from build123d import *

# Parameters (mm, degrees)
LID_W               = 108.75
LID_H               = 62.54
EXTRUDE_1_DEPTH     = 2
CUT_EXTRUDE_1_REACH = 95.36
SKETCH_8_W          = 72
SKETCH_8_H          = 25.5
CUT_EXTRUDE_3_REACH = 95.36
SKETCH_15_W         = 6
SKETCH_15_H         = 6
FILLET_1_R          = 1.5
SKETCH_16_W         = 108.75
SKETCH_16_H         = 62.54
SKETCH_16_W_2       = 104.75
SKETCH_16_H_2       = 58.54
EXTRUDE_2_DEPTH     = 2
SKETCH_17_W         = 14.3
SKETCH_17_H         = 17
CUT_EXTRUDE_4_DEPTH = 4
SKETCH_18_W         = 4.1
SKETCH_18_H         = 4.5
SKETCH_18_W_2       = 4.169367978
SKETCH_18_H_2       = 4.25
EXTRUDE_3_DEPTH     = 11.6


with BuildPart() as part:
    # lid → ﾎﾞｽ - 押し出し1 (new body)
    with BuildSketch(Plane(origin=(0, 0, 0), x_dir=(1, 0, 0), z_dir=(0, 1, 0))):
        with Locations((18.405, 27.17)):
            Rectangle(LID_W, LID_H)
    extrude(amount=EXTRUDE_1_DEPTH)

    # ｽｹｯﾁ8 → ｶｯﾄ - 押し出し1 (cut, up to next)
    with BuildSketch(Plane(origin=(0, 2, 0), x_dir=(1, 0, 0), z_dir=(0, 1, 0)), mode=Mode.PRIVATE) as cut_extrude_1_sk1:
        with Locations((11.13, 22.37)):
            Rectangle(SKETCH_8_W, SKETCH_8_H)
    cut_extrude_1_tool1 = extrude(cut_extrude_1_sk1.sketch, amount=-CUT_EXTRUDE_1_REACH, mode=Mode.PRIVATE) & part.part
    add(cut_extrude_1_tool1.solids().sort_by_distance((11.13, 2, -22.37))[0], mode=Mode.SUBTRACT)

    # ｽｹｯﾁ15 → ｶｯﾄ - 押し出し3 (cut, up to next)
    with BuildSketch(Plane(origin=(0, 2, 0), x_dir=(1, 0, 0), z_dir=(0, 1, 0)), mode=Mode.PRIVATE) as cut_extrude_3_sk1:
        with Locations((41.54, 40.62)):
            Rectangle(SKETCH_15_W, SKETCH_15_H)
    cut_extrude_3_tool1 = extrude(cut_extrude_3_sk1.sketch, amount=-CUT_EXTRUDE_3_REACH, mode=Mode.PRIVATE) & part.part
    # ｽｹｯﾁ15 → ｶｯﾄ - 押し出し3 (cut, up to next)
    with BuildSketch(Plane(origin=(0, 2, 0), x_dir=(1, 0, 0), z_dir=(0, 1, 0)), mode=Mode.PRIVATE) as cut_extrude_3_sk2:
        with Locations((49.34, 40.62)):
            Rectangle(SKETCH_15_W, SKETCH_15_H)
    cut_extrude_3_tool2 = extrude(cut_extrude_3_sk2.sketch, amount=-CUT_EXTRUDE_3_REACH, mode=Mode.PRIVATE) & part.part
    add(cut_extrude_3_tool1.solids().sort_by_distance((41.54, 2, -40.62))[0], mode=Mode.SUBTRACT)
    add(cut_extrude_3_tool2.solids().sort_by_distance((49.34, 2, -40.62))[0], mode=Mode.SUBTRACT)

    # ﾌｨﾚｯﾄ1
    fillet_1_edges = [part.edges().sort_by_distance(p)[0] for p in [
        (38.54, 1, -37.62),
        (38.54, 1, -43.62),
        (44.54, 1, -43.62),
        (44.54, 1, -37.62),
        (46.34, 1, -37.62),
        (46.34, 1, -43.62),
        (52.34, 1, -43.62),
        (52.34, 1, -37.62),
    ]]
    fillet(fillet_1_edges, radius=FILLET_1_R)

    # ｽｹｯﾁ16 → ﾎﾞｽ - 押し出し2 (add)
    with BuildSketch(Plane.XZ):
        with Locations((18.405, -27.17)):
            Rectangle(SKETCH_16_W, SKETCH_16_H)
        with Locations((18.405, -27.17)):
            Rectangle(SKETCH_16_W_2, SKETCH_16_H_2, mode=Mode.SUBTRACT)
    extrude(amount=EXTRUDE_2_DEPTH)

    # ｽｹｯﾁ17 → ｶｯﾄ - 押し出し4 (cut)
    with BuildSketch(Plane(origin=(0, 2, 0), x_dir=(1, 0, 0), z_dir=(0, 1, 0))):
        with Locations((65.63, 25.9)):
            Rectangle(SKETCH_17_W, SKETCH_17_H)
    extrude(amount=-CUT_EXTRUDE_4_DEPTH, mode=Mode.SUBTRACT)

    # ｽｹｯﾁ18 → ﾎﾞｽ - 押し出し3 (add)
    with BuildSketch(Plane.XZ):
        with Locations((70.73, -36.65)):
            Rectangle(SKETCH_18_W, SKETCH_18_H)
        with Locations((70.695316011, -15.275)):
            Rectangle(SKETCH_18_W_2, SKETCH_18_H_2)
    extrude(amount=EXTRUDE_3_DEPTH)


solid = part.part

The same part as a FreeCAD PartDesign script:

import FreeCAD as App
import Part
import Sketcher

V = App.Vector
Q = App.Units.Quantity


def edges_at(feature, points):
    """Names of the edges that pass closest to the given points."""
    edges = feature.Shape.Edges
    near = lambda p: min(range(len(edges)), key=lambda i: edges[i].distToShape(Part.Vertex(*p))[0])
    return sorted({f"Edge{near(p) + 1}" for p in points})

doc = App.newDocument("Part")
params = doc.addObject("Spreadsheet::Sheet", "Params")
for row, (alias, value) in enumerate([
    ("sketch1_width", "108.75 mm"),
    ("sketch1_height", "62.54 mm"),
    ("pad1_length", "2 mm"),
    ("sketch2_width", "72 mm"),
    ("sketch2_height", "25.5 mm"),
    ("sketch3_width", "6 mm"),
    ("sketch4_width", "6 mm"),
    ("fillet_radius", "1.5 mm"),
    ("sketch5_width", "108.75 mm"),
    ("sketch5_height", "62.54 mm"),
    ("pad2_length", "2 mm"),
    ("sketch6_height", "17 mm"),
    ("sketch6_width", "14.3 mm"),
    ("pocket4_length", "4 mm"),
    ("sketch7_width", "4.1 mm"),
    ("sketch7_height", "4.5 mm"),
    ("sketch7_height2", "4.25 mm"),
    ("pad3_length", "11.6 mm"),
], start=1):
    params.set(f"A{row}", alias)
    params.set(f"B{row}", "=" + value)
    params.setAlias(f"B{row}", alias)

body = doc.addObject("PartDesign::Body", "Body")

sketch1 = body.newObject("Sketcher::SketchObject", "Sketch")
sketch1.AttachmentSupport = (doc.getObject("XZ_Plane"), [""])
sketch1.MapMode = "FlatFace"
sketch1.addGeometry(Part.LineSegment(V(-35.97, -58.44, 0), V(-35.97, 4.1, 0)), False)
sketch1.addGeometry(Part.LineSegment(V(-35.97, 4.1, 0), V(72.78, 4.1, 0)), False)
sketch1.addGeometry(Part.LineSegment(V(72.78, 4.1, 0), V(72.78, -58.44, 0)), False)
sketch1.addGeometry(Part.LineSegment(V(72.78, -58.44, 0), V(-35.97, -58.44, 0)), False)
sketch1.addConstraint(Sketcher.Constraint("Coincident", 0, 2, 1, 1))
sketch1.addConstraint(Sketcher.Constraint("Coincident", 1, 2, 2, 1))
sketch1.addConstraint(Sketcher.Constraint("Coincident", 2, 2, 3, 1))
sketch1.addConstraint(Sketcher.Constraint("Coincident", 3, 2, 0, 1))
sketch1.addConstraint(Sketcher.Constraint("Vertical", 0))
sketch1.addConstraint(Sketcher.Constraint("Horizontal", 1))
sketch1.addConstraint(Sketcher.Constraint("Vertical", 2))
sketch1.addConstraint(Sketcher.Constraint("Horizontal", 3))
sketch1.addConstraint(Sketcher.Constraint("DistanceX", 1, 1, 1, 2, Q("108.75 mm")))
sketch1.addConstraint(Sketcher.Constraint("DistanceY", 0, 1, 0, 2, Q("62.54 mm")))
sketch1.addConstraint(Sketcher.Constraint("DistanceY", -1, 1, 0, 2, Q("4.1 mm")))
sketch1.addConstraint(Sketcher.Constraint("DistanceX", 0, 2, -1, 1, Q("35.97 mm")))
sketch1.setExpression("Constraints[8]", "Params.sketch1_width")
sketch1.setExpression("Constraints[9]", "Params.sketch1_height")
pad1 = body.newObject("PartDesign::Pad", "Pad")
pad1.Profile = sketch1
pad1.setExpression("Length", "Params.pad1_length")
pad1.Reversed = True

sketch2 = body.newObject("Sketcher::SketchObject", "Sketch001")
sketch2.AttachmentSupport = (doc.getObject("XZ_Plane"), [""])
sketch2.MapMode = "FlatFace"
sketch2.AttachmentOffset = App.Placement(V(0, 0, -2), App.Rotation())
sketch2.addGeometry(Part.LineSegment(V(-24.87, -35.12, 0), V(-24.87, -9.62, 0)), False)
sketch2.addGeometry(Part.LineSegment(V(-24.87, -9.62, 0), V(47.13, -9.62, 0)), False)
sketch2.addGeometry(Part.LineSegment(V(47.13, -9.62, 0), V(47.13, -35.12, 0)), False)
sketch2.addGeometry(Part.LineSegment(V(47.13, -35.12, 0), V(-24.87, -35.12, 0)), False)
sketch2.addConstraint(Sketcher.Constraint("Coincident", 0, 2, 1, 1))
sketch2.addConstraint(Sketcher.Constraint("Coincident", 1, 2, 2, 1))
sketch2.addConstraint(Sketcher.Constraint("Coincident", 2, 2, 3, 1))
sketch2.addConstraint(Sketcher.Constraint("Coincident", 3, 2, 0, 1))
sketch2.addConstraint(Sketcher.Constraint("Vertical", 0))
sketch2.addConstraint(Sketcher.Constraint("Horizontal", 1))
sketch2.addConstraint(Sketcher.Constraint("Vertical", 2))
sketch2.addConstraint(Sketcher.Constraint("Horizontal", 3))
sketch2.addConstraint(Sketcher.Constraint("DistanceX", 1, 1, 1, 2, Q("72 mm")))
sketch2.addConstraint(Sketcher.Constraint("DistanceY", 0, 1, 0, 2, Q("25.5 mm")))
sketch2.addConstraint(Sketcher.Constraint("DistanceX", 0, 2, -1, 1, Q("24.87 mm")))
sketch2.addConstraint(Sketcher.Constraint("DistanceY", 0, 2, -1, 1, Q("9.62 mm")))
sketch2.setExpression("Constraints[8]", "Params.sketch2_width")
sketch2.setExpression("Constraints[9]", "Params.sketch2_height")
pocket1 = body.newObject("PartDesign::Pocket", "Pocket")
pocket1.Profile = sketch2
pocket1.Type = "UpToFirst"
pocket1.Reversed = True

sketch3 = body.newObject("Sketcher::SketchObject", "Sketch002")
sketch3.AttachmentSupport = (doc.getObject("XZ_Plane"), [""])
sketch3.MapMode = "FlatFace"
sketch3.AttachmentOffset = App.Placement(V(0, 0, -2), App.Rotation())
sketch3.addGeometry(Part.LineSegment(V(38.54, -43.62, 0), V(38.54, -37.62, 0)), False)
sketch3.addGeometry(Part.LineSegment(V(38.54, -37.62, 0), V(44.54, -37.62, 0)), False)
sketch3.addGeometry(Part.LineSegment(V(44.54, -37.62, 0), V(44.54, -43.62, 0)), False)
sketch3.addGeometry(Part.LineSegment(V(44.54, -43.62, 0), V(38.54, -43.62, 0)), False)
sketch3.addConstraint(Sketcher.Constraint("Coincident", 0, 2, 1, 1))
sketch3.addConstraint(Sketcher.Constraint("Coincident", 1, 2, 2, 1))
sketch3.addConstraint(Sketcher.Constraint("Coincident", 2, 2, 3, 1))
sketch3.addConstraint(Sketcher.Constraint("Coincident", 3, 2, 0, 1))
sketch3.addConstraint(Sketcher.Constraint("Vertical", 0))
sketch3.addConstraint(Sketcher.Constraint("Horizontal", 1))
sketch3.addConstraint(Sketcher.Constraint("Vertical", 2))
sketch3.addConstraint(Sketcher.Constraint("Horizontal", 3))
sketch3.addConstraint(Sketcher.Constraint("Equal", 3, 0))
sketch3.addConstraint(Sketcher.Constraint("DistanceX", 1, 1, 1, 2, Q("6 mm")))
sketch3.addConstraint(Sketcher.Constraint("DistanceX", -1, 1, 0, 2, Q("38.54 mm")))
sketch3.addConstraint(Sketcher.Constraint("DistanceY", 0, 2, -1, 1, Q("37.62 mm")))
sketch3.setExpression("Constraints[9]", "Params.sketch3_width")
pocket2 = body.newObject("PartDesign::Pocket", "Pocket001")
pocket2.Profile = sketch3
pocket2.Type = "UpToFirst"
pocket2.Reversed = True

sketch4 = body.newObject("Sketcher::SketchObject", "Sketch003")
sketch4.AttachmentSupport = (doc.getObject("XZ_Plane"), [""])
sketch4.MapMode = "FlatFace"
sketch4.AttachmentOffset = App.Placement(V(0, 0, -2), App.Rotation())
sketch4.addGeometry(Part.LineSegment(V(46.34, -43.62, 0), V(46.34, -37.62, 0)), False)
sketch4.addGeometry(Part.LineSegment(V(46.34, -37.62, 0), V(52.34, -37.62, 0)), False)
sketch4.addGeometry(Part.LineSegment(V(52.34, -37.62, 0), V(52.34, -43.62, 0)), False)
sketch4.addGeometry(Part.LineSegment(V(52.34, -43.62, 0), V(46.34, -43.62, 0)), False)
sketch4.addConstraint(Sketcher.Constraint("Coincident", 0, 2, 1, 1))
sketch4.addConstraint(Sketcher.Constraint("Coincident", 1, 2, 2, 1))
sketch4.addConstraint(Sketcher.Constraint("Coincident", 2, 2, 3, 1))
sketch4.addConstraint(Sketcher.Constraint("Coincident", 3, 2, 0, 1))
sketch4.addConstraint(Sketcher.Constraint("Vertical", 0))
sketch4.addConstraint(Sketcher.Constraint("Horizontal", 1))
sketch4.addConstraint(Sketcher.Constraint("Vertical", 2))
sketch4.addConstraint(Sketcher.Constraint("Horizontal", 3))
sketch4.addConstraint(Sketcher.Constraint("Equal", 3, 0))
sketch4.addConstraint(Sketcher.Constraint("DistanceX", 1, 1, 1, 2, Q("6 mm")))
sketch4.addConstraint(Sketcher.Constraint("DistanceX", -1, 1, 0, 2, Q("46.34 mm")))
sketch4.addConstraint(Sketcher.Constraint("DistanceY", 0, 2, -1, 1, Q("37.62 mm")))
sketch4.setExpression("Constraints[9]", "Params.sketch4_width")
pocket3 = body.newObject("PartDesign::Pocket", "Pocket002")
pocket3.Profile = sketch4
pocket3.Type = "UpToFirst"
pocket3.Reversed = True
doc.recompute()

fillet = body.newObject("PartDesign::Fillet", "Fillet")
fillet.Base = (pocket3, edges_at(pocket3, [
    (38.54, 1, -37.62),
    (38.54, 1, -43.62),
    (44.54, 1, -43.62),
    (44.54, 1, -37.62),
    (46.34, 1, -37.62),
    (46.34, 1, -43.62),
    (52.34, 1, -43.62),
    (52.34, 1, -37.62),
]))
fillet.setExpression("Radius", "Params.fillet_radius")

sketch5 = body.newObject("Sketcher::SketchObject", "Sketch004")
sketch5.AttachmentSupport = (doc.getObject("XZ_Plane"), [""])
sketch5.MapMode = "FlatFace"
sketch5.addGeometry(Part.LineSegment(V(-35.97, 4.1, 0), V(-35.97, -58.44, 0)), False)
sketch5.addGeometry(Part.LineSegment(V(-35.97, -58.44, 0), V(72.78, -58.44, 0)), False)
sketch5.addGeometry(Part.LineSegment(V(72.78, -58.44, 0), V(72.78, 4.1, 0)), False)
sketch5.addGeometry(Part.LineSegment(V(72.78, 4.1, 0), V(-35.97, 4.1, 0)), False)
sketch5.addGeometry(Part.LineSegment(V(70.78, -56.44, 0), V(-33.97, -56.44, 0)), False)
sketch5.addGeometry(Part.LineSegment(V(-33.97, -56.44, 0), V(-33.97, 2.1, 0)), False)
sketch5.addGeometry(Part.LineSegment(V(-33.97, 2.1, 0), V(70.78, 2.1, 0)), False)
sketch5.addGeometry(Part.LineSegment(V(70.78, 2.1, 0), V(70.78, -56.44, 0)), False)
sketch5.addConstraint(Sketcher.Constraint("Coincident", 0, 2, 1, 1))
sketch5.addConstraint(Sketcher.Constraint("Coincident", 1, 2, 2, 1))
sketch5.addConstraint(Sketcher.Constraint("Coincident", 2, 2, 3, 1))
sketch5.addConstraint(Sketcher.Constraint("Coincident", 3, 2, 0, 1))
sketch5.addConstraint(Sketcher.Constraint("Coincident", 4, 2, 5, 1))
sketch5.addConstraint(Sketcher.Constraint("Coincident", 5, 2, 6, 1))
sketch5.addConstraint(Sketcher.Constraint("Coincident", 6, 2, 7, 1))
sketch5.addConstraint(Sketcher.Constraint("Coincident", 7, 2, 4, 1))
sketch5.addConstraint(Sketcher.Constraint("Vertical", 0))
sketch5.addConstraint(Sketcher.Constraint("Horizontal", 1))
sketch5.addConstraint(Sketcher.Constraint("Vertical", 2))
sketch5.addConstraint(Sketcher.Constraint("Horizontal", 3))
sketch5.addConstraint(Sketcher.Constraint("Horizontal", 4))
sketch5.addConstraint(Sketcher.Constraint("Vertical", 5))
sketch5.addConstraint(Sketcher.Constraint("Horizontal", 6))
sketch5.addConstraint(Sketcher.Constraint("Vertical", 7))
sketch5.addConstraint(Sketcher.Constraint("DistanceX", 0, 2, 4, 2, Q("2 mm")))
sketch5.addConstraint(Sketcher.Constraint("DistanceY", 0, 2, 4, 2, Q("2 mm")))
sketch5.addConstraint(Sketcher.Constraint("DistanceY", 5, 2, 3, 2, Q("2 mm")))
sketch5.addConstraint(Sketcher.Constraint("DistanceX", 6, 2, 2, 2, Q("2 mm")))
sketch5.addConstraint(Sketcher.Constraint("DistanceX", 1, 1, 1, 2, Q("108.75 mm")))
sketch5.addConstraint(Sketcher.Constraint("DistanceY", 0, 2, 0, 1, Q("62.54 mm")))
sketch5.addConstraint(Sketcher.Constraint("DistanceY", -1, 1, 2, 2, Q("4.1 mm")))
sketch5.addConstraint(Sketcher.Constraint("DistanceX", 0, 2, -1, 1, Q("35.97 mm")))
sketch5.setExpression("Constraints[20]", "Params.sketch5_width")
sketch5.setExpression("Constraints[21]", "Params.sketch5_height")
pad2 = body.newObject("PartDesign::Pad", "Pad001")
pad2.Profile = sketch5
pad2.setExpression("Length", "Params.pad2_length")

sketch6 = body.newObject("Sketcher::SketchObject", "Sketch005")
sketch6.AttachmentSupport = (doc.getObject("XZ_Plane"), [""])
sketch6.MapMode = "FlatFace"
sketch6.AttachmentOffset = App.Placement(V(0, 0, -2), App.Rotation())
sketch6.addGeometry(Part.LineSegment(V(58.48, -34.4, 0), V(58.48, -17.4, 0)), False)
sketch6.addGeometry(Part.LineSegment(V(58.48, -17.4, 0), V(72.78, -17.4, 0)), False)
sketch6.addGeometry(Part.LineSegment(V(72.78, -17.4, 0), V(72.78, -34.4, 0)), False)
sketch6.addGeometry(Part.LineSegment(V(72.78, -34.4, 0), V(58.48, -34.4, 0)), False)
sketch6.addConstraint(Sketcher.Constraint("Coincident", 0, 2, 1, 1))
sketch6.addConstraint(Sketcher.Constraint("Coincident", 1, 2, 2, 1))
sketch6.addConstraint(Sketcher.Constraint("Coincident", 2, 2, 3, 1))
sketch6.addConstraint(Sketcher.Constraint("Coincident", 3, 2, 0, 1))
sketch6.addConstraint(Sketcher.Constraint("Vertical", 0))
sketch6.addConstraint(Sketcher.Constraint("Horizontal", 1))
sketch6.addConstraint(Sketcher.Constraint("Vertical", 2))
sketch6.addConstraint(Sketcher.Constraint("Horizontal", 3))
sketch6.addConstraint(Sketcher.Constraint("DistanceY", 0, 1, 0, 2, Q("17 mm")))
sketch6.addConstraint(Sketcher.Constraint("DistanceX", 1, 1, 1, 2, Q("14.3 mm")))
sketch6.addConstraint(Sketcher.Constraint("DistanceY", 0, 2, -1, 1, Q("17.4 mm")))
sketch6.addConstraint(Sketcher.Constraint("DistanceX", -1, 1, 0, 2, Q("58.48 mm")))
sketch6.setExpression("Constraints[8]", "Params.sketch6_height")
sketch6.setExpression("Constraints[9]", "Params.sketch6_width")
pocket4 = body.newObject("PartDesign::Pocket", "Pocket003")
pocket4.Profile = sketch6
pocket4.setExpression("Length", "Params.pocket4_length")
pocket4.Reversed = True

sketch7 = body.newObject("Sketcher::SketchObject", "Sketch006")
sketch7.AttachmentSupport = (doc.getObject("XZ_Plane"), [""])
sketch7.MapMode = "FlatFace"
sketch7.addGeometry(Part.LineSegment(V(68.68, -34.4, 0), V(68.68, -38.9, 0)), False)
sketch7.addGeometry(Part.LineSegment(V(68.68, -38.9, 0), V(72.78, -38.9, 0)), False)
sketch7.addGeometry(Part.LineSegment(V(72.78, -38.9, 0), V(72.78, -34.4, 0)), False)
sketch7.addGeometry(Part.LineSegment(V(72.78, -34.4, 0), V(68.68, -34.4, 0)), False)
sketch7.addGeometry(Part.LineSegment(V(68.610632, -13.15, 0), V(68.610632, -17.4, 0)), False)
sketch7.addGeometry(Part.LineSegment(V(68.610632, -17.4, 0), V(72.78, -17.4, 0)), False)
sketch7.addGeometry(Part.LineSegment(V(72.78, -17.4, 0), V(72.78, -13.15, 0)), False)
sketch7.addGeometry(Part.LineSegment(V(72.78, -13.15, 0), V(68.610632, -13.15, 0)), False)
sketch7.addConstraint(Sketcher.Constraint("Coincident", 0, 2, 1, 1))
sketch7.addConstraint(Sketcher.Constraint("Coincident", 1, 2, 2, 1))
sketch7.addConstraint(Sketcher.Constraint("Coincident", 2, 2, 3, 1))
sketch7.addConstraint(Sketcher.Constraint("Coincident", 3, 2, 0, 1))
sketch7.addConstraint(Sketcher.Constraint("Coincident", 4, 2, 5, 1))
sketch7.addConstraint(Sketcher.Constraint("Coincident", 5, 2, 6, 1))
sketch7.addConstraint(Sketcher.Constraint("Coincident", 6, 2, 7, 1))
sketch7.addConstraint(Sketcher.Constraint("Coincident", 7, 2, 4, 1))
sketch7.addConstraint(Sketcher.Constraint("Vertical", 0))
sketch7.addConstraint(Sketcher.Constraint("Horizontal", 1))
sketch7.addConstraint(Sketcher.Constraint("Vertical", 2))
sketch7.addConstraint(Sketcher.Constraint("Horizontal", 3))
sketch7.addConstraint(Sketcher.Constraint("Vertical", 4))
sketch7.addConstraint(Sketcher.Constraint("Horizontal", 5))
sketch7.addConstraint(Sketcher.Constraint("Vertical", 6))
sketch7.addConstraint(Sketcher.Constraint("Horizontal", 7))
sketch7.addConstraint(Sketcher.Constraint("Vertical", 2, 2, 5, 2))
sketch7.addConstraint(Sketcher.Constraint("DistanceX", 1, 1, 1, 2, Q("4.1 mm")))
sketch7.addConstraint(Sketcher.Constraint("DistanceY", 0, 2, 0, 1, Q("4.5 mm")))
sketch7.addConstraint(Sketcher.Constraint("DistanceY", 3, 2, 4, 2, Q("17 mm")))
sketch7.addConstraint(Sketcher.Constraint("DistanceY", 4, 2, 4, 1, Q("4.25 mm")))
sketch7.addConstraint(Sketcher.Constraint("DistanceY", 0, 2, -1, 1, Q("38.9 mm")))
sketch7.addConstraint(Sketcher.Constraint("DistanceX", -1, 1, 0, 2, Q("68.68 mm")))
sketch7.addConstraint(Sketcher.Constraint("DistanceX", 5, 1, 5, 2, Q("4.169368 mm")))
sketch7.setExpression("Constraints[17]", "Params.sketch7_width")
sketch7.setExpression("Constraints[18]", "Params.sketch7_height")
sketch7.setExpression("Constraints[20]", "Params.sketch7_height2")
pad3 = body.newObject("PartDesign::Pad", "Pad002")
pad3.Profile = sketch7
pad3.setExpression("Length", "Params.pad3_length")

doc.recompute()
